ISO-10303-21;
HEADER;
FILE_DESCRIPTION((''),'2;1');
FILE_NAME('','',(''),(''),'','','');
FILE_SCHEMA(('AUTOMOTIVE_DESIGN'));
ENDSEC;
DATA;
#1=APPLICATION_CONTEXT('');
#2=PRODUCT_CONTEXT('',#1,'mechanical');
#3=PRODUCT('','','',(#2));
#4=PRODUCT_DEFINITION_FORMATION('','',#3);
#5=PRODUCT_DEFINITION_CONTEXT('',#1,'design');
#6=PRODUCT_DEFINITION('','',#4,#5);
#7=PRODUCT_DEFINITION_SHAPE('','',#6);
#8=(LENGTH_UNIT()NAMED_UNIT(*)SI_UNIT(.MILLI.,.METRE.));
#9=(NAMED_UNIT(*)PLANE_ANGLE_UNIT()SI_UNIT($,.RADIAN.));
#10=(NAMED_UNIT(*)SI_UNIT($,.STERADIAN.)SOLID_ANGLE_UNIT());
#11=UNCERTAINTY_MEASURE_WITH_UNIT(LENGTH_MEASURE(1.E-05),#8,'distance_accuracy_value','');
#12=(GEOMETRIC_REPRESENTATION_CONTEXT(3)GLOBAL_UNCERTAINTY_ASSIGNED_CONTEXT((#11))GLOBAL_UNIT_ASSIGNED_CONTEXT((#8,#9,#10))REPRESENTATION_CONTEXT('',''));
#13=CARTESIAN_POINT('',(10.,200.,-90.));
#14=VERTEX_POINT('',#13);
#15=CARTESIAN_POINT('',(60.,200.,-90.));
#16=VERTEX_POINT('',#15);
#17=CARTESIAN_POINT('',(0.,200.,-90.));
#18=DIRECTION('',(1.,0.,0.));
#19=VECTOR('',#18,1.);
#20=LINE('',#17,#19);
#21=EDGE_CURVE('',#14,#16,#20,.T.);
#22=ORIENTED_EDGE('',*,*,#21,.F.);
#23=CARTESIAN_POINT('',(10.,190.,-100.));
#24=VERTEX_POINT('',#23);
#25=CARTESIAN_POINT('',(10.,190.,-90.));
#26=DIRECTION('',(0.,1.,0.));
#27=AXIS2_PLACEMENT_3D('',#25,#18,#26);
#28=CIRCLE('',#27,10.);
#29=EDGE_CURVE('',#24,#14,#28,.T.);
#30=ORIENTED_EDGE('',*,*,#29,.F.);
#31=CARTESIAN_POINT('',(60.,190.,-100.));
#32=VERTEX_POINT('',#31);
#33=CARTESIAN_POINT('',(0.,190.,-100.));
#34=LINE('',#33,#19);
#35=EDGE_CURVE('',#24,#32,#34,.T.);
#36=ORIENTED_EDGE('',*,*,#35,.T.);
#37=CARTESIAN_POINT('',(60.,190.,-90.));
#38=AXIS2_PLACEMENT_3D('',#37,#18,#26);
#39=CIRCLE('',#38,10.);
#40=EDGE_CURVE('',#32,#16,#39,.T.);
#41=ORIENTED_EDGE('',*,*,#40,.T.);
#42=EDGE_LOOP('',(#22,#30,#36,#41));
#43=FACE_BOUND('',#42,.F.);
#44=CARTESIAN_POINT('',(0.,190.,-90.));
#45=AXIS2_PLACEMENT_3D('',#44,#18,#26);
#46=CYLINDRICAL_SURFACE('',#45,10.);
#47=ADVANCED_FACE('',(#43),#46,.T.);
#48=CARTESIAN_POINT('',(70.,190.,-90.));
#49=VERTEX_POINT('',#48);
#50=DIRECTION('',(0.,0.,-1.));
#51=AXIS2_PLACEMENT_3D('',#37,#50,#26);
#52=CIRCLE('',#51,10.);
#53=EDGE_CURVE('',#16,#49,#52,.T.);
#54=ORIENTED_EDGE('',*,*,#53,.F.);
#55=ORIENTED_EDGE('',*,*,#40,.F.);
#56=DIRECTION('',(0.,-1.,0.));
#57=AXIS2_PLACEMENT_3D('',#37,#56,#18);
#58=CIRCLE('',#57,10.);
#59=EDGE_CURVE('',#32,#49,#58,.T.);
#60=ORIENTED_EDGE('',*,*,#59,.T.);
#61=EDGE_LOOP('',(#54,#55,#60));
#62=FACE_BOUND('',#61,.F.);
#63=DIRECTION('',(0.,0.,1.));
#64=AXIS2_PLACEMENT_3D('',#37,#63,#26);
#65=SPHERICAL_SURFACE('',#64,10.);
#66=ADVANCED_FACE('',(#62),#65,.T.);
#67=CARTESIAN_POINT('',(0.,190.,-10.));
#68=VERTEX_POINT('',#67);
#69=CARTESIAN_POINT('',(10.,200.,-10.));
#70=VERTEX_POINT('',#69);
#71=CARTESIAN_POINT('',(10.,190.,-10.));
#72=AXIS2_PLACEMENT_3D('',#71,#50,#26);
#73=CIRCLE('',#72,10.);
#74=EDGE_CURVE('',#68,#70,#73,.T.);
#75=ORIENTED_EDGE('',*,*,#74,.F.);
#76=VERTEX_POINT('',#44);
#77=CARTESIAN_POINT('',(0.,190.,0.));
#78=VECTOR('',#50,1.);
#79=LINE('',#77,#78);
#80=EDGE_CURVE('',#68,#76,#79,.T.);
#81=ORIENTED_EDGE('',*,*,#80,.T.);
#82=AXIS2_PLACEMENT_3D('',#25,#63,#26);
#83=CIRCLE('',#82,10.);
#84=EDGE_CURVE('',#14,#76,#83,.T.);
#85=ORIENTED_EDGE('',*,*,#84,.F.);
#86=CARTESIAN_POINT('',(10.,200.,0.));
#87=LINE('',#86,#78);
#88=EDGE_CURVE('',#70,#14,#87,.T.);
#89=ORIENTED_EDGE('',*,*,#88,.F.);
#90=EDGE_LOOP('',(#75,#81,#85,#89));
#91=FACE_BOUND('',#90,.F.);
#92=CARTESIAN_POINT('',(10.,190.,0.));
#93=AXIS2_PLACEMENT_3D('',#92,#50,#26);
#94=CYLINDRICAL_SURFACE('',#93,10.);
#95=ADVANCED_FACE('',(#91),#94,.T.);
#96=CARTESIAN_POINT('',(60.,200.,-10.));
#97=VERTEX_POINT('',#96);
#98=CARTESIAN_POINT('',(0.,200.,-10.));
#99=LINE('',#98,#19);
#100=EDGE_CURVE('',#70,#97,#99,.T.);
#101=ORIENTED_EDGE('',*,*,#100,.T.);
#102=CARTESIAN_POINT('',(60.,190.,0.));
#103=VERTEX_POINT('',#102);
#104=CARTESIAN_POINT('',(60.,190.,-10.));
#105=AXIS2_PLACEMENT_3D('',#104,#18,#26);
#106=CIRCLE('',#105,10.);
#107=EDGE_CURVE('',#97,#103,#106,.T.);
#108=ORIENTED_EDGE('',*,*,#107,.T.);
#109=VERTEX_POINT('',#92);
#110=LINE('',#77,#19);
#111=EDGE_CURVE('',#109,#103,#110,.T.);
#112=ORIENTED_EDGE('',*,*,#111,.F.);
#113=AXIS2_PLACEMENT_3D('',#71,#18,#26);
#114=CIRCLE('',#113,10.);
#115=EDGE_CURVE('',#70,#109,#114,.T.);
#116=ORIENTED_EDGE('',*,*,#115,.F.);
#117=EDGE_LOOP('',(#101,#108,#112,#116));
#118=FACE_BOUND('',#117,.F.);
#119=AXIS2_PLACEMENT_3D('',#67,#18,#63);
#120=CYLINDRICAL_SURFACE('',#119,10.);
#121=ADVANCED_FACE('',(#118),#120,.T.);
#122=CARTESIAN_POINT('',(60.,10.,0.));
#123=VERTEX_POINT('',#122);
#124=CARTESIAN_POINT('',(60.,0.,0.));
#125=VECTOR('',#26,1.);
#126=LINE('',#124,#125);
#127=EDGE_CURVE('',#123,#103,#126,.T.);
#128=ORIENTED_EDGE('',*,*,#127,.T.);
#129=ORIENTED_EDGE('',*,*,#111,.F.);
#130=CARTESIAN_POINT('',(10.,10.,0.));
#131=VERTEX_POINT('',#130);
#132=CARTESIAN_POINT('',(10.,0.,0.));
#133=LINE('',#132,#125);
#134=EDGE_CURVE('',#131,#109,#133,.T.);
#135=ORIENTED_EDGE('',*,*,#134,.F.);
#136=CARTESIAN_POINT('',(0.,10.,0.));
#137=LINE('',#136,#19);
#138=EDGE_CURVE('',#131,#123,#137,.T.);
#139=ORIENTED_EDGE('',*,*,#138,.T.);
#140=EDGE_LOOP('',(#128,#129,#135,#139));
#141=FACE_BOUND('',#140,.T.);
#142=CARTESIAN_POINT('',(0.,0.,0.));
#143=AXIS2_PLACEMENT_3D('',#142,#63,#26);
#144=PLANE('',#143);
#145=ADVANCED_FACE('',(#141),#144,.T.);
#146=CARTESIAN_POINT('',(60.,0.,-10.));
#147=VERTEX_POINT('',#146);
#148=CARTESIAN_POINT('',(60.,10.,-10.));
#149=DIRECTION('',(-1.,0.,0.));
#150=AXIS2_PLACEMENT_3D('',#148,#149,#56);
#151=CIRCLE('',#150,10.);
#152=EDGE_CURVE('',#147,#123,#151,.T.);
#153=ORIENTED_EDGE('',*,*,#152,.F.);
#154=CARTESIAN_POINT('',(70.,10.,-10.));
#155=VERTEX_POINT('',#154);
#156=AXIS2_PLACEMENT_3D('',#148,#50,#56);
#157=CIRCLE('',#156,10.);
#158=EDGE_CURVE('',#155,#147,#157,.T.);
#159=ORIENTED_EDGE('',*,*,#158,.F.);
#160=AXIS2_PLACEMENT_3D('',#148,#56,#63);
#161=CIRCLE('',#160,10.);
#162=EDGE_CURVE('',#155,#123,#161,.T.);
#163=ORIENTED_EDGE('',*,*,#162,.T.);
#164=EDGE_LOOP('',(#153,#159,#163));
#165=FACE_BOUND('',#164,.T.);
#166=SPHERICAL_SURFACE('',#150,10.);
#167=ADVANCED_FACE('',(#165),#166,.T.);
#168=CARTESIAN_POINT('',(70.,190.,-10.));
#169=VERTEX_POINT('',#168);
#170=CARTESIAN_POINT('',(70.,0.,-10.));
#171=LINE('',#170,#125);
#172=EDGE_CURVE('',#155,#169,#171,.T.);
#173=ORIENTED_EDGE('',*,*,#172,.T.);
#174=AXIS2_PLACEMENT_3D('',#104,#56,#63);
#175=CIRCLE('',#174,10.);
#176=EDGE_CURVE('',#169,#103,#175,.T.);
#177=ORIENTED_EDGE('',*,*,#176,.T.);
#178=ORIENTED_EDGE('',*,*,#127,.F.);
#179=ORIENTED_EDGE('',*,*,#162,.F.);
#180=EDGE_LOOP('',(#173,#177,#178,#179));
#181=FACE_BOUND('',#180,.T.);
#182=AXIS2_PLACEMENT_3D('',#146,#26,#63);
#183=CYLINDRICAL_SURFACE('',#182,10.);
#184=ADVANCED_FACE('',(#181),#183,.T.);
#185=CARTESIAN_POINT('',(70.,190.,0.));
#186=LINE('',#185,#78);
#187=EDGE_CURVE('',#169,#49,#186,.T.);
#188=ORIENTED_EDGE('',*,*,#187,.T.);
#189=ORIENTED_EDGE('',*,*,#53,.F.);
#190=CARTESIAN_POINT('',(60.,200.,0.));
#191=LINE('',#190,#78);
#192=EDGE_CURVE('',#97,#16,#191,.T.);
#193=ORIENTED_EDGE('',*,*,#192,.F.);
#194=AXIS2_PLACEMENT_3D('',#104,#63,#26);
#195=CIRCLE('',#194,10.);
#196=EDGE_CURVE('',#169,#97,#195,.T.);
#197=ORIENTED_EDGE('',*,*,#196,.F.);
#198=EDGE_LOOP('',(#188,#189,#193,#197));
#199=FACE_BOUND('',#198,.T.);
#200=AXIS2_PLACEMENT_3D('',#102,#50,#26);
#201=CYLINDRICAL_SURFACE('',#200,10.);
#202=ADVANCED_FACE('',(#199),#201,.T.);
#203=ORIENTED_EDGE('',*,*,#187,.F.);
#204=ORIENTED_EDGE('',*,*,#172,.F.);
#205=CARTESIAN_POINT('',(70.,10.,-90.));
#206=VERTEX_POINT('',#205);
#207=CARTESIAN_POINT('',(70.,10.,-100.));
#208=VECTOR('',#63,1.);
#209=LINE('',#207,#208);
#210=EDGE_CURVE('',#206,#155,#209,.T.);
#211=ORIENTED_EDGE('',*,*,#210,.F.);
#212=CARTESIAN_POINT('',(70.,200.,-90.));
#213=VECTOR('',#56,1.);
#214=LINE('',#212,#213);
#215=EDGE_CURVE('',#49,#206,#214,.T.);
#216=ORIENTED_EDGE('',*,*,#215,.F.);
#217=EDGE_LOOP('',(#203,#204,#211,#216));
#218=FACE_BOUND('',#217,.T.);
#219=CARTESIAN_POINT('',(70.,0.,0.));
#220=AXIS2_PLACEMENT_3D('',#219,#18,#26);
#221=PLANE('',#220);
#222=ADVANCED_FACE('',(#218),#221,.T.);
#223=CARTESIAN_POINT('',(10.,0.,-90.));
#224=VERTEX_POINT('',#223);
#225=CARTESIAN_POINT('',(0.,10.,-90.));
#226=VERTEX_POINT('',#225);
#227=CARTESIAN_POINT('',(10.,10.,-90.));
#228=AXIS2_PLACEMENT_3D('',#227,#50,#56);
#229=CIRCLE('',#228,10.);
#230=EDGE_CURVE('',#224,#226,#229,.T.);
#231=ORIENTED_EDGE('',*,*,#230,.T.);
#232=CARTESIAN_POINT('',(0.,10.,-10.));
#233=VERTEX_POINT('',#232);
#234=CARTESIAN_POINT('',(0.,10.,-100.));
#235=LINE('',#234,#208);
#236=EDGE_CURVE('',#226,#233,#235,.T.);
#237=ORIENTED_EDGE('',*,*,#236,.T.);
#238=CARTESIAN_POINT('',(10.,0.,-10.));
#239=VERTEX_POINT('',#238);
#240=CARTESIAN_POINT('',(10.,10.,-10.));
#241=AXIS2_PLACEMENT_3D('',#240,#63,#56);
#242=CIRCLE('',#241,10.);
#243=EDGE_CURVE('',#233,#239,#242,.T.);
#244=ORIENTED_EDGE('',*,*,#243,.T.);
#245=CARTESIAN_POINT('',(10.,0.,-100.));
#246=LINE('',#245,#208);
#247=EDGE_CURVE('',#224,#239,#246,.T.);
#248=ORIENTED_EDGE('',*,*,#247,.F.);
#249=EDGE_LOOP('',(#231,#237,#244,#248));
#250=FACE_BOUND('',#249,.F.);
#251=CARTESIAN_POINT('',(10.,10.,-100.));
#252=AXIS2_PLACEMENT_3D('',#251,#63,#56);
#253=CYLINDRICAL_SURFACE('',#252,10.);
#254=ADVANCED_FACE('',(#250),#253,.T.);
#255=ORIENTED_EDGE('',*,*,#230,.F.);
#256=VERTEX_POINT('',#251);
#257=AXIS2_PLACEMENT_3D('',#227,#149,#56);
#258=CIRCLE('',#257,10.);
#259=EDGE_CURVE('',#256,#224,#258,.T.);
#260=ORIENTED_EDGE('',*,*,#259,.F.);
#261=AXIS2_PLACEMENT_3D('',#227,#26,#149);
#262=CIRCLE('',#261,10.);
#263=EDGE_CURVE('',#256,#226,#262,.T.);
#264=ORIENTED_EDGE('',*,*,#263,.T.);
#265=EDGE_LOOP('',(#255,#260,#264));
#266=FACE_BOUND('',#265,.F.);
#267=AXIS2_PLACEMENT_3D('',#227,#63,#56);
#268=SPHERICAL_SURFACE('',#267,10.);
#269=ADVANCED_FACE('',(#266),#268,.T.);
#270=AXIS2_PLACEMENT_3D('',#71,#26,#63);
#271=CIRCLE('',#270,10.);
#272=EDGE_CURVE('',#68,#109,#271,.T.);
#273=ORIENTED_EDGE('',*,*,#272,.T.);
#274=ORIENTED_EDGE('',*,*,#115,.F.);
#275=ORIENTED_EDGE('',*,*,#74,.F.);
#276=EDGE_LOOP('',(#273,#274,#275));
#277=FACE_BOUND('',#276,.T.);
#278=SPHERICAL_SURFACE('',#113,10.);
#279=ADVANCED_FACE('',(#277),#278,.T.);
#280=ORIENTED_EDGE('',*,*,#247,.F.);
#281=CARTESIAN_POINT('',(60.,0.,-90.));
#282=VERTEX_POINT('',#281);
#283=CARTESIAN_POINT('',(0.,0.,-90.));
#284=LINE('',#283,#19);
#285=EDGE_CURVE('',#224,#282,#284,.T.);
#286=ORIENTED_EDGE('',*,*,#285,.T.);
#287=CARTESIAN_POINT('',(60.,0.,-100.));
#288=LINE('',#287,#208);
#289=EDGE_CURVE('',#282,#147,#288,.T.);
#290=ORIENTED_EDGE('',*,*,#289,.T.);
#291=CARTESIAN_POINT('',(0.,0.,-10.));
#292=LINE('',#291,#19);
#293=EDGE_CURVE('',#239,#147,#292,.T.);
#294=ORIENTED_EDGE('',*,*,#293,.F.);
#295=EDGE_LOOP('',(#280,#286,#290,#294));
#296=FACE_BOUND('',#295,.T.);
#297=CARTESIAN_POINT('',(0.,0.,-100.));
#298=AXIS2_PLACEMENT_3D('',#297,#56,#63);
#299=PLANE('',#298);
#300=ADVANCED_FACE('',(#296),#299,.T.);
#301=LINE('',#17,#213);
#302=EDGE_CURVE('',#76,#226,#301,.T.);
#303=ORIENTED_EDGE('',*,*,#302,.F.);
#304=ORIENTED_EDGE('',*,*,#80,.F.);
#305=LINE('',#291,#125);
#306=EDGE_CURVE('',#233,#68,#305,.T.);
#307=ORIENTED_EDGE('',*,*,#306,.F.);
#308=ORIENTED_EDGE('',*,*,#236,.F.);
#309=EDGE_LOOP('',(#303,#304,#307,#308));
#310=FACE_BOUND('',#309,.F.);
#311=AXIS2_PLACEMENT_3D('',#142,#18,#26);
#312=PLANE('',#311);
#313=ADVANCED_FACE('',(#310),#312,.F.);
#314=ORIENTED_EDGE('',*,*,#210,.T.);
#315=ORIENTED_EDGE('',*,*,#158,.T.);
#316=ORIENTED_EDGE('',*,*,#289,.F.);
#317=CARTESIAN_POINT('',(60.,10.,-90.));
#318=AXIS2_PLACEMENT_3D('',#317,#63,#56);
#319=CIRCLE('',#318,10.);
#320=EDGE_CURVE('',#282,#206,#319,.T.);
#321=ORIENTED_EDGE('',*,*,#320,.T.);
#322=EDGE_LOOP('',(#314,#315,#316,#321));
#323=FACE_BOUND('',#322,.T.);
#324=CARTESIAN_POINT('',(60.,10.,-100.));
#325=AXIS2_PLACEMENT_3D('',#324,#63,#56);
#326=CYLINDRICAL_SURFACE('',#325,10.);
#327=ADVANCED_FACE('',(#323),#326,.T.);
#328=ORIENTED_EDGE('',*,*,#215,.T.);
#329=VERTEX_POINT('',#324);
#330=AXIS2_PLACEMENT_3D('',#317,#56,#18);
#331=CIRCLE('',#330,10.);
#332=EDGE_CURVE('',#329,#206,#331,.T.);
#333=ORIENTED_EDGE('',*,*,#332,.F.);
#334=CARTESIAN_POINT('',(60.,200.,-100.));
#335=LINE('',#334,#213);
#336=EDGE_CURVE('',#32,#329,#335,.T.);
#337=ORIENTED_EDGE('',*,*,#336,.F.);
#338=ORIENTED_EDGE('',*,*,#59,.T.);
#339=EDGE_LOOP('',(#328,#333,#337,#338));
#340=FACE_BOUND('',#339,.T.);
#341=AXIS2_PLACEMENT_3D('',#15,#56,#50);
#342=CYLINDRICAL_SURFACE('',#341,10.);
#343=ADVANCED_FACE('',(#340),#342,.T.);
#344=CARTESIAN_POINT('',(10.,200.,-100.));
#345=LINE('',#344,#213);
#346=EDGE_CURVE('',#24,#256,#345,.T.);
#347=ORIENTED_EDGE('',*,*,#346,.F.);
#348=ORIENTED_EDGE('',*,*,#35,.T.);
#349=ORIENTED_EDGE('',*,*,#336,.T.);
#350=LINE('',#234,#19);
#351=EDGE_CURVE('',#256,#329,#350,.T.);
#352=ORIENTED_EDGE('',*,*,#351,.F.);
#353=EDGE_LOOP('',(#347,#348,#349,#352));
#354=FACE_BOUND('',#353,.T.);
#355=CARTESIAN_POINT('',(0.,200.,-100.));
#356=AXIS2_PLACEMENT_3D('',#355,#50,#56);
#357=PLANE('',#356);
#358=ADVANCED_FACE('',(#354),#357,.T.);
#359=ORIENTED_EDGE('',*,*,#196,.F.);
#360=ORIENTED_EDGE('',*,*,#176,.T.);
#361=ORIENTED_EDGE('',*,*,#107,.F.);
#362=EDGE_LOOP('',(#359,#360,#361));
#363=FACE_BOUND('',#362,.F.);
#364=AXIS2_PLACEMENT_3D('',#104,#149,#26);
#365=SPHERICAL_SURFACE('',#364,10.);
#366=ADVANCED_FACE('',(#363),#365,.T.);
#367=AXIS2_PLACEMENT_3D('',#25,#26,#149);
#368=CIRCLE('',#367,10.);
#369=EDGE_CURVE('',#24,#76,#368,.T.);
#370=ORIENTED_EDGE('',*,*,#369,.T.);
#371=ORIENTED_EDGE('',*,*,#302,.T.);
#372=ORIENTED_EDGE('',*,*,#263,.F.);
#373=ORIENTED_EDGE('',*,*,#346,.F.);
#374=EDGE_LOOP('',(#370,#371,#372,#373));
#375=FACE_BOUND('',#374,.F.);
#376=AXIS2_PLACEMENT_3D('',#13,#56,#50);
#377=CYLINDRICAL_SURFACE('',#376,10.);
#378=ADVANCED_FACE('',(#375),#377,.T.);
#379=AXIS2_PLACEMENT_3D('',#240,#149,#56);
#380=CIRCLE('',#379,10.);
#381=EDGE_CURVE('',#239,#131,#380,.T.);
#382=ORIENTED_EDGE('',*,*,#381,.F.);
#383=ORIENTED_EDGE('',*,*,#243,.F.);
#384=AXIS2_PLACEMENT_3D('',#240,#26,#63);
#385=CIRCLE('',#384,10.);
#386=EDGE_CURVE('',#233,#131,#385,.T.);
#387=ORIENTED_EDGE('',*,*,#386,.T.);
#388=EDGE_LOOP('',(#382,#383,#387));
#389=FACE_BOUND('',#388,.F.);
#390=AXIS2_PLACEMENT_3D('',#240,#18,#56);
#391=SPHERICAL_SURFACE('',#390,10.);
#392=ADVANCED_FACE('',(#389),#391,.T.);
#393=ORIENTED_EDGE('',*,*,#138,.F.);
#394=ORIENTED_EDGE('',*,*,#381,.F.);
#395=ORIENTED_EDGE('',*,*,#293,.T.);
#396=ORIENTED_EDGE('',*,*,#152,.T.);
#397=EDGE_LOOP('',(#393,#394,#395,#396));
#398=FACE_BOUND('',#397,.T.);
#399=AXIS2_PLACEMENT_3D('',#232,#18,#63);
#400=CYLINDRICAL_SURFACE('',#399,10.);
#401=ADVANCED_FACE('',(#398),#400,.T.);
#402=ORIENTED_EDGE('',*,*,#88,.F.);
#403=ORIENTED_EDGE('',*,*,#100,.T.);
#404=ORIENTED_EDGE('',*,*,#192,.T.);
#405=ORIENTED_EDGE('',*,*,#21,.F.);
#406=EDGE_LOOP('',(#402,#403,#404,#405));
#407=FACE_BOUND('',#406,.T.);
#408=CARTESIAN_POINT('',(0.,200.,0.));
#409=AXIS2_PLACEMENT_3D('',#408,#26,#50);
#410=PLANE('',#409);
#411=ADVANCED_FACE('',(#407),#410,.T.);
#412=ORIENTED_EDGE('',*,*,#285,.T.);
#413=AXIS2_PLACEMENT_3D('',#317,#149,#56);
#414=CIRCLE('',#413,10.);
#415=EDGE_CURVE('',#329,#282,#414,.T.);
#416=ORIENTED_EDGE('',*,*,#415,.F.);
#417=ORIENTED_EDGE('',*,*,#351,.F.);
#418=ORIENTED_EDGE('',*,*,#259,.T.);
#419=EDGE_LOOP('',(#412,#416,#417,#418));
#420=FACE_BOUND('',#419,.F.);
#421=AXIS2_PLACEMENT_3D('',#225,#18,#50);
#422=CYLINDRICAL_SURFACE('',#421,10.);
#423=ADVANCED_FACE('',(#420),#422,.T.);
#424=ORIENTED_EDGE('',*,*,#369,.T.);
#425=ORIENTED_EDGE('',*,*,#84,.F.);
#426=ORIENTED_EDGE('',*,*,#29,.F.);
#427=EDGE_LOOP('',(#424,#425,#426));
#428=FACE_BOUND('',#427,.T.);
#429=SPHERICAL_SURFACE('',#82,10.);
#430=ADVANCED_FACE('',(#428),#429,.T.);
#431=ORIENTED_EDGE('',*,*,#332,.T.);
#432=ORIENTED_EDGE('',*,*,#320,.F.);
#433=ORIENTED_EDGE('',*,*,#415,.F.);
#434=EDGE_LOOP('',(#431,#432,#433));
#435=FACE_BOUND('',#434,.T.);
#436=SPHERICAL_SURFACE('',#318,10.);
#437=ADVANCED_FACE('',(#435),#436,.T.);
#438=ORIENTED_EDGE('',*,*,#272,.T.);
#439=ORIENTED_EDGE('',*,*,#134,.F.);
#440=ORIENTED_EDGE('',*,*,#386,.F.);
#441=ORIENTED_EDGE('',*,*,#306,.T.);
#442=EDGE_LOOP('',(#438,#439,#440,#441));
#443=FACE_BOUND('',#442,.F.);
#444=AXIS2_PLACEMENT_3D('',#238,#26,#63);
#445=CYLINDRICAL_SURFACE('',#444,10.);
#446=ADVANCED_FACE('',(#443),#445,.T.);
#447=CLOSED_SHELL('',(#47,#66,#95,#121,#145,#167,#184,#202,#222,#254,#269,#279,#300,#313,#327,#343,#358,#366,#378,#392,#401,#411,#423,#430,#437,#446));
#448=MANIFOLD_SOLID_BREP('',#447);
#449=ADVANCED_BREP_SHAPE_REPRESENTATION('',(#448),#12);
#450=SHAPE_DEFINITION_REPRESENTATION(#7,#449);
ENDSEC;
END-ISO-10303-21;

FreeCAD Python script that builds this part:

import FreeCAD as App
import Part
import Sketcher


def add_polygon(sketch, points):
    """Adds a closed chain of lines whose ends are joined by coincident constraints."""
    first, n = sketch.GeometryCount, len(points)
    for a, b in zip(points, points[1:] + points[:1]):
        sketch.addGeometry(Part.LineSegment(App.Vector(*a, 0), App.Vector(*b, 0)), False)
    for i in range(n):
        sketch.addConstraint(Sketcher.Constraint("Coincident", first + i, 2, first + (i + 1) % n, 1))

doc = App.newDocument("Part")
body = doc.addObject("PartDesign::Body", "Body")

# Sketch on YZ plane
sketch1 = doc.addObject("Sketcher::SketchObject", "Sketch")
body.addObject(sketch1)
sketch1.AttachmentSupport = (doc.YZ_Plane, [""])
sketch1.MapMode = "FlatFace"
add_polygon(sketch1, [(200, 0), (0, 0), (0, -100), (200, -100)])  # lines 0-3
sketch1.addConstraint([
    Sketcher.Constraint("Horizontal", 0),
    Sketcher.Constraint("Vertical", 1),
    Sketcher.Constraint("Horizontal", 2),
    Sketcher.Constraint("Vertical", 3),
    Sketcher.Constraint("Coincident", 0, 2, -1, 1),
    Sketcher.Constraint("DistanceX", 0, 2, 0, 1, 200.0),
    Sketcher.Constraint("DistanceY", 1, 2, 1, 1, 100.0),
])
pad1 = doc.addObject("PartDesign::Pad", "Pad")
body.addObject(pad1)
pad1.Profile = sketch1
pad1.Length = 70
doc.recompute()

fillet = doc.addObject("PartDesign::Fillet", "Fillet")
body.addObject(fillet)
fillet.Base = (pad1, ["Edge1"])
fillet.UseAllEdges = True
fillet.Radius = 10

doc.recompute()
